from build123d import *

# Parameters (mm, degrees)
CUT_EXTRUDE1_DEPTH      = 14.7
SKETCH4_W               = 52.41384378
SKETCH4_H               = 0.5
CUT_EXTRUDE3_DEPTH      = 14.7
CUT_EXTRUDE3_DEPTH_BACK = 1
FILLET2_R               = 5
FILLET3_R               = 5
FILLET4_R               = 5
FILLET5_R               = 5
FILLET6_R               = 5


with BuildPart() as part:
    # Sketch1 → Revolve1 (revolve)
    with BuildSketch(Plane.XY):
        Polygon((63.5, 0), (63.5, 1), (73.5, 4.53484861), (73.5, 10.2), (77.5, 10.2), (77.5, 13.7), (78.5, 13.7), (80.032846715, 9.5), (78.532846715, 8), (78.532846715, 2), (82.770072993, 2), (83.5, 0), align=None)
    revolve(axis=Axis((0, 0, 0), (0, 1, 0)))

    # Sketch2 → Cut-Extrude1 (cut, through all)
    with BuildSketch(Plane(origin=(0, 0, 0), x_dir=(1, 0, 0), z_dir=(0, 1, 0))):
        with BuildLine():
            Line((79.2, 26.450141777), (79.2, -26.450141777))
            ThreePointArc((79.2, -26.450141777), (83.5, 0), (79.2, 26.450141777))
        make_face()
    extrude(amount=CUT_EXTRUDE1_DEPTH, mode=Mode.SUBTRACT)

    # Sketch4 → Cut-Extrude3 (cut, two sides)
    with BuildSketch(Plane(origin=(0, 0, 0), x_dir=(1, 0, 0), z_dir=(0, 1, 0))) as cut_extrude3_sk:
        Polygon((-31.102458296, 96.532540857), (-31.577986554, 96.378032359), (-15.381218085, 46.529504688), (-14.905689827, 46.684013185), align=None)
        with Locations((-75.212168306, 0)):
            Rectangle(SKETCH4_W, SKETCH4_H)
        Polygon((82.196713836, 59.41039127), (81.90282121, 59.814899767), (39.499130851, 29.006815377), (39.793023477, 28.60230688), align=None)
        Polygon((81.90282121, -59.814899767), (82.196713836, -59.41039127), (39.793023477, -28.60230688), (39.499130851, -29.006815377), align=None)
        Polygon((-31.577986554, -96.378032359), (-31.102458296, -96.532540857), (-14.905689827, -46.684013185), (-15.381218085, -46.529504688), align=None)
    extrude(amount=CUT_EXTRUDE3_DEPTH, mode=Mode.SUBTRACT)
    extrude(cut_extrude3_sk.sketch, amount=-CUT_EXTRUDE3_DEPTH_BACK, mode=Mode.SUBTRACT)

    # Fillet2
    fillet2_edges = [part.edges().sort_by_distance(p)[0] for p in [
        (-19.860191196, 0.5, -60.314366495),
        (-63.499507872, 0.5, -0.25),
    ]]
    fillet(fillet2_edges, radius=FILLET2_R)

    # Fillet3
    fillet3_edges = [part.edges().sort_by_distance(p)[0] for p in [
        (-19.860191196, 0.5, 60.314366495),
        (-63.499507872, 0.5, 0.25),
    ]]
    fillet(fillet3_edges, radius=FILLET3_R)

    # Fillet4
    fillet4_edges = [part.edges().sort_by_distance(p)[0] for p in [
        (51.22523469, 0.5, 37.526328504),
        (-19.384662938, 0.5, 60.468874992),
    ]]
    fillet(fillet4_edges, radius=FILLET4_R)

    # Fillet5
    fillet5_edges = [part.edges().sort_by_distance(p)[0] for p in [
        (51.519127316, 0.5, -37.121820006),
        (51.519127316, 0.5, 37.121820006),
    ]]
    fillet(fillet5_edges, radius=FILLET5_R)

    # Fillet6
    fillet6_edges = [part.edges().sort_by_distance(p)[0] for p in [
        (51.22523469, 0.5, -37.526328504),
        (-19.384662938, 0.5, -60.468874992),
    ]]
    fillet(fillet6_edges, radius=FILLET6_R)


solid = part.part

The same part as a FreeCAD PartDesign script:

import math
import FreeCAD as App
import Part
import Sketcher

V = App.Vector
Q = App.Units.Quantity


def edges_at(feature, points):
    """Names of the edges that pass closest to the given points."""
    edges = feature.Shape.Edges
    near = lambda p: min(range(len(edges)), key=lambda i: edges[i].distToShape(Part.Vertex(*p))[0])
    return sorted({f"Edge{near(p) + 1}" for p in points})


def add_polygon(sketch, points):
    """Adds a closed chain of lines whose ends are joined by coincident constraints."""
    first, n = sketch.GeometryCount, len(points)
    for a, b in zip(points, points[1:] + points[:1]):
        sketch.addGeometry(Part.LineSegment(App.Vector(*a, 0), App.Vector(*b, 0)), False)
    for i in range(n):
        sketch.addConstraint(Sketcher.Constraint("Coincident", first + i, 2, first + (i + 1) % n, 1))

doc = App.newDocument("Part")
body = doc.addObject("PartDesign::Body", "Body")
body.AllowCompound = True

# Sketch on XY plane
sketch1 = doc.addObject("Sketcher::SketchObject", "Sketch")
body.addObject(sketch1)
sketch1.AttachmentSupport = (doc.XY_Plane, [""])
sketch1.MapMode = "FlatFace"
add_polygon(sketch1, [(63.5, 1), (63.5, 0), (83.5, 0), (82.770073, 2), (78.532847, 2), (78.532847, 8), (80.032847, 9.5), (78.5, 13.7), (77.5, 13.7), (77.5, 10.2), (73.5, 10.2), (73.5, 4.534849)])  # lines 0-11
sketch1.addConstraint(Sketcher.Constraint("Vertical", 0))
sketch1.addConstraint(Sketcher.Constraint("Horizontal", 1))
sketch1.addConstraint(Sketcher.Constraint("Horizontal", 3))
sketch1.addConstraint(Sketcher.Constraint("Vertical", 4))
sketch1.addConstraint(Sketcher.Constraint("Horizontal", 7))
sketch1.addConstraint(Sketcher.Constraint("Vertical", 8))
sketch1.addConstraint(Sketcher.Constraint("Horizontal", 9))
sketch1.addConstraint(Sketcher.Constraint("Vertical", 10))
sketch1.addConstraint(Sketcher.Constraint("PointOnObject", 0, 2, -1))
sketch1.addConstraint(Sketcher.Constraint("Parallel", 2, 6))
sketch1.addConstraint(Sketcher.Constraint("Equal", 7, 0))
sketch1.addConstraint(Sketcher.Constraint("DistanceX", 1, 1, 1, 2, Q("20 mm")))
sketch1.addConstraint(Sketcher.Constraint("DistanceX", 7, 2, 7, 1, Q("1 mm")))
sketch1.addConstraint(Sketcher.Constraint("DistanceX", 9, 2, 9, 1, Q("4 mm")))
sketch1.addConstraint(Sketcher.Constraint("DistanceY", 4, 1, 4, 2, Q("6 mm")))
sketch1.addConstraint(Sketcher.Constraint("Angle", 5, Q("45 deg")))
sketch1.addConstraint(Sketcher.Constraint("DistanceY", 8, 2, 8, 1, Q("3.5 mm")))
sketch1.addConstraint(Sketcher.Constraint("DistanceY", -1, 1, 2, 2, Q("2 mm")))
sketch1.addConstraint(Sketcher.Constraint("DistanceX", 6, 2, 1, 2, Q("5 mm")))
sketch1.addConstraint(Sketcher.Constraint("DistanceX", -1, 1, 0, 2, Q("63.5 mm")))
sketch1.addConstraint(Sketcher.Constraint("DistanceY", -1, 1, 5, 2, Q("9.5 mm")))
sketch1.addConstraint(Sketcher.Constraint("DistanceY", -1, 1, 6, 2, Q("13.7 mm")))
sketch1.addConstraint(Sketcher.Constraint("DistanceY", 10, 2, 10, 1, Q("5.665151 mm")))
sketch1.addConstraint(Sketcher.Constraint("DistanceX", 3, 2, 3, 1, Q("4.237226 mm")))
revolution = doc.addObject("PartDesign::Revolution", "Revolution")
body.addObject(revolution)
revolution.Profile = sketch1
revolution.ReferenceAxis = (sketch1, ["V_Axis"])
revolution.Angle = 360

# Sketch on XZ plane
sketch2 = doc.addObject("Sketcher::SketchObject", "Sketch001")
body.addObject(sketch2)
sketch2.AttachmentSupport = (doc.XZ_Plane, [""])
sketch2.MapMode = "FlatFace"
sketch2.addGeometry(Part.LineSegment(V(79.2, -26.450142, 0), V(79.2, 26.450142, 0)), False)
sketch2.addGeometry(Part.ArcOfCircle(Part.Circle(V(0, 0, 0), V(0, 0, 1), 83.5), math.radians(-18.467589), math.radians(18.467589)), False)
sketch2.addConstraint(Sketcher.Constraint("Coincident", 0, 1, 1, 1))
sketch2.addConstraint(Sketcher.Constraint("Coincident", 1, 2, 0, 2))
sketch2.addConstraint(Sketcher.Constraint("Vertical", 0))
sketch2.addConstraint(Sketcher.Constraint("Coincident", 1, 3, -1, 1))
sketch2.addConstraint(Sketcher.Constraint("Radius", 1, Q("83.5 mm")))
sketch2.addConstraint(Sketcher.Constraint("DistanceX", -1, 1, 0, 1, Q("79.2 mm")))
pocket1 = doc.addObject("PartDesign::Pocket", "Pocket")
body.addObject(pocket1)
pocket1.Profile = sketch2
pocket1.Type = "ThroughAll"

# Sketch on XZ plane
sketch3 = doc.addObject("Sketcher::SketchObject", "Sketch002")
body.addObject(sketch3)
sketch3.AttachmentSupport = (doc.XZ_Plane, [""])
sketch3.MapMode = "FlatFace"
add_polygon(sketch3, [(-31.102458, -96.532541), (-31.577987, -96.378032), (-15.381218, -46.529505), (-14.90569, -46.684013)])  # lines 0-3
add_polygon(sketch3, [(-101.41909, -0.25), (-101.41909, 0.25), (-49.005246, 0.25), (-49.005246, -0.25)])  # lines 4-7
add_polygon(sketch3, [(82.196714, -59.410391), (81.902821, -59.8149), (39.499131, -29.006815), (39.793023, -28.602307)])  # lines 8-11
add_polygon(sketch3, [(81.902821, 59.8149), (82.196714, 59.410391), (39.793023, 28.602307), (39.499131, 29.006815)])  # lines 12-15
add_polygon(sketch3, [(-31.577987, 96.378032), (-31.102458, 96.532541), (-14.90569, 46.684013), (-15.381218, 46.529505)])  # lines 16-19
sketch3.addConstraint(Sketcher.Constraint("Vertical", 4))
sketch3.addConstraint(Sketcher.Constraint("Horizontal", 5))
sketch3.addConstraint(Sketcher.Constraint("Vertical", 6))
sketch3.addConstraint(Sketcher.Constraint("Horizontal", 7))
sketch3.addConstraint(Sketcher.Constraint("Symmetric", 11, 2, 12, 2, -1))
sketch3.addConstraint(Sketcher.Constraint("Symmetric", 10, 2, 13, 2, -1))
sketch3.addConstraint(Sketcher.Constraint("Symmetric", 9, 2, 14, 2, -1))
sketch3.addConstraint(Sketcher.Constraint("Symmetric", 8, 2, 15, 2, -1))
sketch3.addConstraint(Sketcher.Constraint("Symmetric", 3, 2, 16, 2, -1))
sketch3.addConstraint(Sketcher.Constraint("Symmetric", 2, 2, 17, 2, -1))
sketch3.addConstraint(Sketcher.Constraint("Symmetric", 1, 2, 18, 2, -1))
sketch3.addConstraint(Sketcher.Constraint("Symmetric", 0, 2, 19, 2, -1))
sketch3.addConstraint(Sketcher.Constraint("Perpendicular", 0, 1))
sketch3.addConstraint(Sketcher.Constraint("Perpendicular", 1, 2))
sketch3.addConstraint(Sketcher.Constraint("Perpendicular", 2, 3))
sketch3.addConstraint(Sketcher.Constraint("Perpendicular", 8, 9))
sketch3.addConstraint(Sketcher.Constraint("Perpendicular", 9, 10))
sketch3.addConstraint(Sketcher.Constraint("Perpendicular", 10, 11))
sketch3.addConstraint(Sketcher.Constraint("Equal", 2, 8))
sketch3.addConstraint(Sketcher.Constraint("Equal", 3, 9))
sketch3.addConstraint(Sketcher.Constraint("Angle", 0, Q("162 deg")))
sketch3.addConstraint(Sketcher.Constraint("Angle", 8, Q("-126 deg")))
sketch3.addConstraint(Sketcher.Constraint("DistanceY", 4, 1, 4, 2, Q("0.5 mm")))
sketch3.addConstraint(Sketcher.Constraint("Distance", 0, Q("0.5 mm")))
sketch3.addConstraint(Sketcher.Constraint("DistanceY", -1, 1, 4, 2, Q("0.25 mm")))
sketch3.addConstraint(Sketcher.Constraint("DistanceY", 8, 2, -1, 1, Q("59.8149 mm")))
sketch3.addConstraint(Sketcher.Constraint("DistanceX", 4, 2, 2, 2, Q("86.5134 mm")))
sketch3.addConstraint(Sketcher.Constraint("DistanceY", 10, 2, 12, 2, Q("88.012698 mm")))
sketch3.addConstraint(Sketcher.Constraint("DistanceX", 5, 1, 5, 2, Q("52.413844 mm")))
sketch3.addConstraint(Sketcher.Constraint("DistanceX", 1, 2, -1, 1, Q("15.381218 mm")))
sketch3.addConstraint(Sketcher.Constraint("DistanceY", 3, 2, -1, 1, Q("96.532541 mm")))
sketch3.addConstraint(Sketcher.Constraint("DistanceX", -1, 1, 8, 2, Q("81.902821 mm")))
pocket2 = doc.addObject("PartDesign::Pocket", "Pocket001")
body.addObject(pocket2)
pocket2.Profile = sketch3
pocket2.Type = "ThroughAll"
pocket2.Midplane = True
doc.recompute()

fillet = doc.addObject("PartDesign::Fillet", "Fillet")
body.addObject(fillet)
fillet.Base = (pocket2, edges_at(pocket2, [(-19.86, 0.5, -60.314), (-63.5, 0.5, -0.25)]))
fillet.Radius = 5
doc.recompute()

fillet2 = doc.addObject("PartDesign::Fillet", "Fillet001")
body.addObject(fillet2)
fillet2.Base = (fillet, edges_at(fillet, [(-19.86, 0.5, 60.314), (-63.5, 0.5, 0.25)]))
fillet2.Radius = 5
doc.recompute()

fillet3 = doc.addObject("PartDesign::Fillet", "Fillet002")
body.addObject(fillet3)
fillet3.Base = (fillet2, edges_at(fillet2, [(51.225, 0.5, 37.526), (-19.385, 0.5, 60.469)]))
fillet3.Radius = 5
doc.recompute()

fillet4 = doc.addObject("PartDesign::Fillet", "Fillet003")
body.addObject(fillet4)
fillet4.Base = (fillet3, edges_at(fillet3, [(51.519, 0.5, -37.122), (51.519, 0.5, 37.122)]))
fillet4.Radius = 5
doc.recompute()

fillet5 = doc.addObject("PartDesign::Fillet", "Fillet004")
body.addObject(fillet5)
fillet5.Base = (fillet4, edges_at(fillet4, [(51.225, 0.5, -37.526), (-19.385, 0.5, -60.469)]))
fillet5.Radius = 5

doc.recompute()
